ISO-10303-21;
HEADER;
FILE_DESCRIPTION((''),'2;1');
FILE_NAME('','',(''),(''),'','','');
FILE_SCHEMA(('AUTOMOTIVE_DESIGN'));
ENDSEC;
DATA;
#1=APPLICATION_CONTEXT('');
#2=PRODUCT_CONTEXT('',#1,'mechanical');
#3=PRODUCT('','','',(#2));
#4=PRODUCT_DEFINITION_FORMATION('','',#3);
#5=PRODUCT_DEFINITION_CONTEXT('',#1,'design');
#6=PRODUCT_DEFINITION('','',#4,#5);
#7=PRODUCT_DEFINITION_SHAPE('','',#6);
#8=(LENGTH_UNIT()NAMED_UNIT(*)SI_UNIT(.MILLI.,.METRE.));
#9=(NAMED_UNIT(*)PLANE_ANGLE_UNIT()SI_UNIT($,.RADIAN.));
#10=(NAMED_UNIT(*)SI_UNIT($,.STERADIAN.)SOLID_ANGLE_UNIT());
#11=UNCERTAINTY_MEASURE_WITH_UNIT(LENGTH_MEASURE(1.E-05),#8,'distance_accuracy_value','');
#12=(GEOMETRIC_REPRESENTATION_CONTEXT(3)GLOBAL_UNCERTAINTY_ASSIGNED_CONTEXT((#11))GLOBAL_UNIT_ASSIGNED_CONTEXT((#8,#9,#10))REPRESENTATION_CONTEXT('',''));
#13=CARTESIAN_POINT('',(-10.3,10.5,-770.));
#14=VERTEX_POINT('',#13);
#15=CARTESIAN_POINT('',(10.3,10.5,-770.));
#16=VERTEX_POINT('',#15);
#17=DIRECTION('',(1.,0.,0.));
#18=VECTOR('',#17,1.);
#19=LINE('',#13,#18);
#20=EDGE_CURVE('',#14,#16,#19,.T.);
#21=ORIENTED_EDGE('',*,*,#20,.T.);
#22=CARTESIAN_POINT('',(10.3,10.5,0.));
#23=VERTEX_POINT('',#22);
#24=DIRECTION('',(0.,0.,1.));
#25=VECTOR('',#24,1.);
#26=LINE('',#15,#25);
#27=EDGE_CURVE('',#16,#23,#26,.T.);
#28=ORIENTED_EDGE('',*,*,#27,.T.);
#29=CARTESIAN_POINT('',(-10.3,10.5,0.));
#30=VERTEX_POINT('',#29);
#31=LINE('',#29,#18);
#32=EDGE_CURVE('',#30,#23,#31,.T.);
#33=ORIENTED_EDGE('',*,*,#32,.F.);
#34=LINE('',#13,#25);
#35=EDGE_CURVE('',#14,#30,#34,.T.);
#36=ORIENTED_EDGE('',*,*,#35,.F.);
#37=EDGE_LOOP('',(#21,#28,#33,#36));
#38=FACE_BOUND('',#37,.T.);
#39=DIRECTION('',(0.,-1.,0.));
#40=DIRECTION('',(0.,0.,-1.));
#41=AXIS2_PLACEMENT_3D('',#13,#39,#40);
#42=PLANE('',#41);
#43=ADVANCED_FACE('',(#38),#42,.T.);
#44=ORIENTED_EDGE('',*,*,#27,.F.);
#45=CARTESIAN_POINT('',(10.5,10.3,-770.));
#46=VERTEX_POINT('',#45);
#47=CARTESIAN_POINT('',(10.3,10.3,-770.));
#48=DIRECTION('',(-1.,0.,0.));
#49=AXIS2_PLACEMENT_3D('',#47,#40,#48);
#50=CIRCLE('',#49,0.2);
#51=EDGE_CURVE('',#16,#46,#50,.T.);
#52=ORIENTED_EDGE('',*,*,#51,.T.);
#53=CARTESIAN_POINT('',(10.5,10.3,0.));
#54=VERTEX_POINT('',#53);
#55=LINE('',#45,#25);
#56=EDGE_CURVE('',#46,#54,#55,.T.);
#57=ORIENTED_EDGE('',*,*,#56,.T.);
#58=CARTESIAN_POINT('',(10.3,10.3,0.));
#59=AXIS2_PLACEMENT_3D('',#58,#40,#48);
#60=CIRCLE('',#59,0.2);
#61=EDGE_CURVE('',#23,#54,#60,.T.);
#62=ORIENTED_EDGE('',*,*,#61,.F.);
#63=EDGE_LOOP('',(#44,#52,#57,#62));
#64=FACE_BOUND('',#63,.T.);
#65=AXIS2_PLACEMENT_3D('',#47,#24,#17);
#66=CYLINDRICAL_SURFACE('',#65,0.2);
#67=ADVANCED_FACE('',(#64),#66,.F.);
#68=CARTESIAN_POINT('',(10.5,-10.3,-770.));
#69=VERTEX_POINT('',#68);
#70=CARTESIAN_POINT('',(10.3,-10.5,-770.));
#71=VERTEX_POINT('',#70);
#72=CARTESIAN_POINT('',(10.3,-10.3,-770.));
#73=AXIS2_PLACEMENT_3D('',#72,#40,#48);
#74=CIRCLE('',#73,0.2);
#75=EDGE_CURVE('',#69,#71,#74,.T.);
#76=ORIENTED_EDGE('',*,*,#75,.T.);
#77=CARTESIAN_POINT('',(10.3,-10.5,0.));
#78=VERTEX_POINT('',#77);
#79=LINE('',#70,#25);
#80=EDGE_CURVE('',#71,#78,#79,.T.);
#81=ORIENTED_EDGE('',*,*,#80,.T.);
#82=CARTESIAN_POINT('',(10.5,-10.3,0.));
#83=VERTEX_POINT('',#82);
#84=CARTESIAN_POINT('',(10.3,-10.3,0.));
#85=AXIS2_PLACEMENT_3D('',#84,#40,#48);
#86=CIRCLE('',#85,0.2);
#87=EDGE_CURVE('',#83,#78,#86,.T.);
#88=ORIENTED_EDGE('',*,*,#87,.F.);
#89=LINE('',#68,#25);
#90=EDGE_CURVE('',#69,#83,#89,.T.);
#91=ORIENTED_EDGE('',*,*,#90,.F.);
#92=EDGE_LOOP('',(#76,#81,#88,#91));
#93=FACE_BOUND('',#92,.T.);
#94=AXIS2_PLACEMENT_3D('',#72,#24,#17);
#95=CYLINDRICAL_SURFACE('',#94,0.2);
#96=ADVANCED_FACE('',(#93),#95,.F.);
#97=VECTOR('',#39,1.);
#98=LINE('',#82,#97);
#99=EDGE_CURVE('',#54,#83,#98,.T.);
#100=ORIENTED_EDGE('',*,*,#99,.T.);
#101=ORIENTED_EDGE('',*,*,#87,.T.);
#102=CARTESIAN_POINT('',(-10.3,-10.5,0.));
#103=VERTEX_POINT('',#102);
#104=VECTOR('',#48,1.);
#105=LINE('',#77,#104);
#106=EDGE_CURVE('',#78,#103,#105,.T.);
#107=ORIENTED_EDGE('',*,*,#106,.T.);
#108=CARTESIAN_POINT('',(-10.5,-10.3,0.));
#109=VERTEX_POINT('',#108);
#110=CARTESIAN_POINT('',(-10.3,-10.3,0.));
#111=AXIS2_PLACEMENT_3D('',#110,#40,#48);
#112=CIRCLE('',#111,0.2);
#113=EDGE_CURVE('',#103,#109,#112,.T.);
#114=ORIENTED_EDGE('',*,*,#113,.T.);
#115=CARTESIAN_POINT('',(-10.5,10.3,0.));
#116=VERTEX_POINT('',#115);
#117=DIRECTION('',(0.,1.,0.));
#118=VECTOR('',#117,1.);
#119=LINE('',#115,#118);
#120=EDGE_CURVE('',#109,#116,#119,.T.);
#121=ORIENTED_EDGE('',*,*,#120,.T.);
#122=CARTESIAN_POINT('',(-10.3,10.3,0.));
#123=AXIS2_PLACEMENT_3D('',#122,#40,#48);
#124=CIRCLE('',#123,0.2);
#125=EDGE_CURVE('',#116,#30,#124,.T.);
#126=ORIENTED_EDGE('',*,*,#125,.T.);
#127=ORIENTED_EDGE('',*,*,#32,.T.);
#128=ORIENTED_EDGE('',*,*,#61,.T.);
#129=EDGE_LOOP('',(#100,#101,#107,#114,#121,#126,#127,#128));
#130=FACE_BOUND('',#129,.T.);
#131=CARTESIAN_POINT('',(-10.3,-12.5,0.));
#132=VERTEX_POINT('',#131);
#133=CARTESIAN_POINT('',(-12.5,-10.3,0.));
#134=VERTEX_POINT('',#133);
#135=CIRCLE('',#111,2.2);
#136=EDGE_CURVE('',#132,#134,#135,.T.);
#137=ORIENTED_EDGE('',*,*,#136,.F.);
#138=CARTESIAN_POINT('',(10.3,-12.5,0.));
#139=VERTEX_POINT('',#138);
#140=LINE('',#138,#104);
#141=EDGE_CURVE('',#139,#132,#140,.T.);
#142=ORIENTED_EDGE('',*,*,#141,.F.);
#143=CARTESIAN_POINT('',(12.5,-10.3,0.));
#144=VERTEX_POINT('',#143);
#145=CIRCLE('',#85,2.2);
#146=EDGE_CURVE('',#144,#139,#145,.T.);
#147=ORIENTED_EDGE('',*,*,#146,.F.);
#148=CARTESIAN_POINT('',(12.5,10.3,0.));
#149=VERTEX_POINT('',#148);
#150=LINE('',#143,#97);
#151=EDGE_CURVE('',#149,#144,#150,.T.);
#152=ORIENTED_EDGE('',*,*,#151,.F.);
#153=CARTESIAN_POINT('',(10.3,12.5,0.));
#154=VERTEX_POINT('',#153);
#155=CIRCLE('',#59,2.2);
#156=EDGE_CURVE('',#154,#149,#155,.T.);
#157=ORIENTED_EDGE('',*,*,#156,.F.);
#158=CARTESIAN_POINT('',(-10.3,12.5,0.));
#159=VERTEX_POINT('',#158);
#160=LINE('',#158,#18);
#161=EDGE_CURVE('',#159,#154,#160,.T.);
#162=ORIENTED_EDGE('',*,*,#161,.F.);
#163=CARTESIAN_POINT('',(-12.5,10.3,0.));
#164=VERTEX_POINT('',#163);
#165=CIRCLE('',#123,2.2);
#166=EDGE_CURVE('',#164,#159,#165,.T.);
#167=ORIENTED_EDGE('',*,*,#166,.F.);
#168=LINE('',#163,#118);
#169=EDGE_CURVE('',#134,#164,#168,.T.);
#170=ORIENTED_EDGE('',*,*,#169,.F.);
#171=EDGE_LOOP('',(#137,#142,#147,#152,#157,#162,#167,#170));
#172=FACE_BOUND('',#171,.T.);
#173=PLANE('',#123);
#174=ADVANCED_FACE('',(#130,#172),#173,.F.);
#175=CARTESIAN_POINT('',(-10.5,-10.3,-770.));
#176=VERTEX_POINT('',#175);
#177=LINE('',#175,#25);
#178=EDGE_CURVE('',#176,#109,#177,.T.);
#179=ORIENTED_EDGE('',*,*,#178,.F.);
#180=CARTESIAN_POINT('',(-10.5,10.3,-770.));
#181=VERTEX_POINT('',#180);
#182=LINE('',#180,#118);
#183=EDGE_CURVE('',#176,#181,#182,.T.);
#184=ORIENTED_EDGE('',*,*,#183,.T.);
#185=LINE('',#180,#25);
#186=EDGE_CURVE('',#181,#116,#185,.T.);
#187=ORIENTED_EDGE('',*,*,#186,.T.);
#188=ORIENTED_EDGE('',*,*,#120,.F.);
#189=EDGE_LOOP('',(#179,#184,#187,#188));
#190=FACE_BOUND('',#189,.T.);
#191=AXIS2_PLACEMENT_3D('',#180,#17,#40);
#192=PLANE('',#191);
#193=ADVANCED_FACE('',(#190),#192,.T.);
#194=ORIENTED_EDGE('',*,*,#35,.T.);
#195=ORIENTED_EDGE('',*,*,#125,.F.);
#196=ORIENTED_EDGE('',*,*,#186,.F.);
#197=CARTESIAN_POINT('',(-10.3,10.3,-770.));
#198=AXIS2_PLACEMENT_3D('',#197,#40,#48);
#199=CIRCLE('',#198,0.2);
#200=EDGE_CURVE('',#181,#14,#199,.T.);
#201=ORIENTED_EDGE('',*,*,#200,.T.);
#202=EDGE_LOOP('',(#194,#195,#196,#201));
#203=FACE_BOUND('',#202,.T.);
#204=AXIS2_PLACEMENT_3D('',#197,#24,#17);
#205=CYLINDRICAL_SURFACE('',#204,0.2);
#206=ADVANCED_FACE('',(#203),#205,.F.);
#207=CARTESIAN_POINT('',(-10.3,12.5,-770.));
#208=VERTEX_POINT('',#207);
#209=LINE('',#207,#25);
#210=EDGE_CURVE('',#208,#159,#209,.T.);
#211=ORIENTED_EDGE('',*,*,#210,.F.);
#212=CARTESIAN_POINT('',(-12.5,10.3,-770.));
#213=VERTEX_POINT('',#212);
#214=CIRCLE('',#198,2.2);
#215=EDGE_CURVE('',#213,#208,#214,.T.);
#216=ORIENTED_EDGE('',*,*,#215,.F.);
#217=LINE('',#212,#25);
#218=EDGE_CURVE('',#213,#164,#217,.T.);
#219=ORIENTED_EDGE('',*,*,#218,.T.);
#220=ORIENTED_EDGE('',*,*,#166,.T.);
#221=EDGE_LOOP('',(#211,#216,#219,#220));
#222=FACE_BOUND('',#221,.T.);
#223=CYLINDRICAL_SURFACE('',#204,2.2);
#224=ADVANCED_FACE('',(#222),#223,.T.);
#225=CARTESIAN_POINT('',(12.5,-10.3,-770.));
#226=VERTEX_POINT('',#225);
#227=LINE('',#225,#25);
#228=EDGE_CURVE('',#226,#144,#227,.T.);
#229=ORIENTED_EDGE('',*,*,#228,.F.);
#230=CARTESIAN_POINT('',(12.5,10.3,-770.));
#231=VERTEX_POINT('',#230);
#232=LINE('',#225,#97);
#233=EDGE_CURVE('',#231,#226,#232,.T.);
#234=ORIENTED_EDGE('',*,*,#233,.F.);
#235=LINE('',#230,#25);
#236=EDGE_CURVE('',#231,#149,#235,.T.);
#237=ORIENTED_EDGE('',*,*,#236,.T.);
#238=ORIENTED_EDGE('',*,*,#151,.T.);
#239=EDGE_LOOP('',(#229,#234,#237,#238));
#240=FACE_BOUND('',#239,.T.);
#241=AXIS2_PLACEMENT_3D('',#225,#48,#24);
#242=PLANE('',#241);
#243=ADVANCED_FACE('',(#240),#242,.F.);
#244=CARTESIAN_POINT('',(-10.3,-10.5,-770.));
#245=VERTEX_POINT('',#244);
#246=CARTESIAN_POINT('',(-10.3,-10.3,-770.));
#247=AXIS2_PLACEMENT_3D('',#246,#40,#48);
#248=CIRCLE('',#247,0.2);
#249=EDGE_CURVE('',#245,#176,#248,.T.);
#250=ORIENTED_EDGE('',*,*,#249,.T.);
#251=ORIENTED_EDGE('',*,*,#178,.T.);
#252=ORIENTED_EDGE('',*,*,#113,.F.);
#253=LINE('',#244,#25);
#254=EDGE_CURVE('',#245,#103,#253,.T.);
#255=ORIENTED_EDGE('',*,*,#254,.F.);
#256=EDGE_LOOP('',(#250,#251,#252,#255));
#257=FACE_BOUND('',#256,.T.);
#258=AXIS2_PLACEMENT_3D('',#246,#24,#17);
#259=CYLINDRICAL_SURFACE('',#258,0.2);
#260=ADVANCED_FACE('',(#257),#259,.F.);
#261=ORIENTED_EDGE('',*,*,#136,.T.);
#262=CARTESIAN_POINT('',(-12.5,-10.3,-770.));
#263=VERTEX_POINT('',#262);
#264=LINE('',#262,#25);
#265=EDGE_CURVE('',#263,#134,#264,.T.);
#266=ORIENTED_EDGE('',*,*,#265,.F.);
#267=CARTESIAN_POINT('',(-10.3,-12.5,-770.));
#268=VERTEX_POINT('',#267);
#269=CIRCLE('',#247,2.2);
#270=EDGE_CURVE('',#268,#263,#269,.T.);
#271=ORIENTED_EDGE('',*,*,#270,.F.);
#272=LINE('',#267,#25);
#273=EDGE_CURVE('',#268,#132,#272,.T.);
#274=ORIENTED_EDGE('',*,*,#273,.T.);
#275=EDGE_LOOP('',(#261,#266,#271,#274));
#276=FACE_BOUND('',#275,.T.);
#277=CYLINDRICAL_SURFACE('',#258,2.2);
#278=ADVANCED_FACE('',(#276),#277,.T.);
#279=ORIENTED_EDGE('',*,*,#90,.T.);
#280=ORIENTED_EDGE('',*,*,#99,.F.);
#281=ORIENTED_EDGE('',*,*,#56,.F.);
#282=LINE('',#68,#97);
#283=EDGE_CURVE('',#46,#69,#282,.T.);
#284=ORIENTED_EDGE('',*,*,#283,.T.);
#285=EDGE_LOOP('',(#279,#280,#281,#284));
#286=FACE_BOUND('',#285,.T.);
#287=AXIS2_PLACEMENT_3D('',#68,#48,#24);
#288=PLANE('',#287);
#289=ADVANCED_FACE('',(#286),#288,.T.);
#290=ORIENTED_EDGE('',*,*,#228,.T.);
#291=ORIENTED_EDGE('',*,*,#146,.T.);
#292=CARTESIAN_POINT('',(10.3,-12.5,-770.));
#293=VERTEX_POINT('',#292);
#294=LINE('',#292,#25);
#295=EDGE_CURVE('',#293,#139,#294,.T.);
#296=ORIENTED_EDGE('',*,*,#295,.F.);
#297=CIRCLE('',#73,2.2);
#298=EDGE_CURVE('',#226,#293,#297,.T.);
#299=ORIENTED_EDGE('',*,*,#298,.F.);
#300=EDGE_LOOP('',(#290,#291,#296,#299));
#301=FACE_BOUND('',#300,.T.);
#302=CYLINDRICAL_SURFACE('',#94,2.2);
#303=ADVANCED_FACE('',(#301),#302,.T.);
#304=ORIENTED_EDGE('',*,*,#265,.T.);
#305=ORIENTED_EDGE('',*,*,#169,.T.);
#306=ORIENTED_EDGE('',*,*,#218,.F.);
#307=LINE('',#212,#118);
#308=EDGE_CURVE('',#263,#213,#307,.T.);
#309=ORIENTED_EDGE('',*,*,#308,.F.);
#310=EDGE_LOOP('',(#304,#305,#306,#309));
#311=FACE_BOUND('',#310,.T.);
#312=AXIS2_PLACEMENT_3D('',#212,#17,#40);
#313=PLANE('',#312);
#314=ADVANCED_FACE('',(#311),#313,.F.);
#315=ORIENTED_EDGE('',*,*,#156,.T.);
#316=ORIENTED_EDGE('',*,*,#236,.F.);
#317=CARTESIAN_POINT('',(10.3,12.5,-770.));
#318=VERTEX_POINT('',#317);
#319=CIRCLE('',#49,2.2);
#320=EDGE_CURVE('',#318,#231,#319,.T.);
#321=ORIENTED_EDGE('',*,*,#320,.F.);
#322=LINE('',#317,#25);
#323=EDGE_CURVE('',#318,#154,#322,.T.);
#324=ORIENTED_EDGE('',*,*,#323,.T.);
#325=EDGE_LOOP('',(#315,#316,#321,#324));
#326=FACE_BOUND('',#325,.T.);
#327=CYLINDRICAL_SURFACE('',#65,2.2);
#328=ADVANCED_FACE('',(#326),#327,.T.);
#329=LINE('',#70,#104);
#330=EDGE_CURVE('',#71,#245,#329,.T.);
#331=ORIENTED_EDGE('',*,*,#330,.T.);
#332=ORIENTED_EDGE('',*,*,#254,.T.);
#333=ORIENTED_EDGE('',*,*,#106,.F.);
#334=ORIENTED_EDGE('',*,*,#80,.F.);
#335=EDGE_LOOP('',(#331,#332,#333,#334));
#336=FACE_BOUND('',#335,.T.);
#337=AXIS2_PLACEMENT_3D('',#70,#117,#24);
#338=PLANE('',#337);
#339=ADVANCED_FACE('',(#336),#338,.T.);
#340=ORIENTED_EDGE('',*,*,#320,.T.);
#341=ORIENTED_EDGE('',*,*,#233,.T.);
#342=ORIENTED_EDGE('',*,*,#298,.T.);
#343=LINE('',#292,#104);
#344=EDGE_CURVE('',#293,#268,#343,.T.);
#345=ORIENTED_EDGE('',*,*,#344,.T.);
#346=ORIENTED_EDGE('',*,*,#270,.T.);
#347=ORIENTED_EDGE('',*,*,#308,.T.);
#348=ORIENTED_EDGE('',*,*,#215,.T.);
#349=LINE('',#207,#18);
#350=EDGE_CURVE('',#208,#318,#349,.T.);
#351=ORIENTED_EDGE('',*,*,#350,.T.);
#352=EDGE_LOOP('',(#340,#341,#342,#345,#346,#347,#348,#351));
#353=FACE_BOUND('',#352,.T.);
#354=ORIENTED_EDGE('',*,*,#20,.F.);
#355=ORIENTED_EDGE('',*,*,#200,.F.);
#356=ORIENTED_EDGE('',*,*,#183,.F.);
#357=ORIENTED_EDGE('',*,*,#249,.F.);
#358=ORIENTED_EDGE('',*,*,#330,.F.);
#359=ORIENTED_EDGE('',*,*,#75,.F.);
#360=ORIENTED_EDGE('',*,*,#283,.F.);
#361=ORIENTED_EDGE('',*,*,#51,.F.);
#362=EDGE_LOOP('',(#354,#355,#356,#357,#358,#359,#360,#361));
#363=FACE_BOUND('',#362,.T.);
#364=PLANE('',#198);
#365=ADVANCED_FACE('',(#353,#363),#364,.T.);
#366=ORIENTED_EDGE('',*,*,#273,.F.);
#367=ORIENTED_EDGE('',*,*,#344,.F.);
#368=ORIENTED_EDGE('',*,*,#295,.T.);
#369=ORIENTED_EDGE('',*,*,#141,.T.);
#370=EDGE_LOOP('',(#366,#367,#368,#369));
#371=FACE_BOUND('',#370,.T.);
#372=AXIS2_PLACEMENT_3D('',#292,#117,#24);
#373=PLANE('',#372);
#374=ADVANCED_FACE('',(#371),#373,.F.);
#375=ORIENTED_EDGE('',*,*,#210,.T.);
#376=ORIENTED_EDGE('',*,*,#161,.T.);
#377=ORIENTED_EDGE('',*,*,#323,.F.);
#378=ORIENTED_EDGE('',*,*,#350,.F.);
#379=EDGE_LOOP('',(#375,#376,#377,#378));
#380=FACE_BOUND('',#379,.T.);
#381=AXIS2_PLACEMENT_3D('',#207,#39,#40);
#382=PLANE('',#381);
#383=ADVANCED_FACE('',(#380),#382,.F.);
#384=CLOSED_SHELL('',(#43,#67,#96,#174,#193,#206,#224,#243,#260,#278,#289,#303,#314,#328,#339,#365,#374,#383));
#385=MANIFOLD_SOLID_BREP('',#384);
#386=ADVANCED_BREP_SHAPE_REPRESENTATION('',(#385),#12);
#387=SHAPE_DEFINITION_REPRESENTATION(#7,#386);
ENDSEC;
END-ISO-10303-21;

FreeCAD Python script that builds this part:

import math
import FreeCAD as App
import Part
import Sketcher

V = App.Vector

doc = App.newDocument("Part")
body = doc.addObject("PartDesign::Body", "Body")

# Sketch on XY plane
sketch1 = body.newObject("Sketcher::SketchObject", "Sketch")
sketch1.AttachmentSupport = (doc.getObject("XY_Plane"), [""])
sketch1.MapMode = "FlatFace"
sketch1.addGeometry([
    Part.LineSegment(V(10.3, -12.5, 0), V(-10.3, -12.5, 0)),  # 0
    Part.ArcOfCircle(Part.Circle(V(-10.3, -10.3, 0), V(0, 0, 1), 2.2), math.radians(180), math.radians(270)),  # 1
    Part.LineSegment(V(-12.5, -10.3, 0), V(-12.5, 10.3, 0)),  # 2
    Part.ArcOfCircle(Part.Circle(V(-10.3, 10.3, 0), V(0, 0, 1), 2.2), math.radians(90), math.radians(180)),  # 3
    Part.LineSegment(V(-10.3, 12.5, 0), V(10.3, 12.5, 0)),  # 4
    Part.ArcOfCircle(Part.Circle(V(10.3, 10.3, 0), V(0, 0, 1), 2.2), math.radians(0), math.radians(90)),  # 5
    Part.LineSegment(V(12.5, 10.3, 0), V(12.5, -10.3, 0)),  # 6
    Part.ArcOfCircle(Part.Circle(V(10.3, -10.3, 0), V(0, 0, 1), 2.2), math.radians(-90), math.radians(0)),  # 7
    Part.LineSegment(V(-10.3, -10.5, 0), V(10.3, -10.5, 0)),  # 8
    Part.ArcOfCircle(Part.Circle(V(10.3, -10.3, 0), V(0, 0, 1), 0.2), math.radians(-90), math.radians(0)),  # 9
    Part.LineSegment(V(10.5, -10.3, 0), V(10.5, 10.3, 0)),  # 10
    Part.ArcOfCircle(Part.Circle(V(10.3, 10.3, 0), V(0, 0, 1), 0.2), math.radians(0), math.radians(90)),  # 11
    Part.LineSegment(V(10.3, 10.5, 0), V(-10.3, 10.5, 0)),  # 12
    Part.ArcOfCircle(Part.Circle(V(-10.3, 10.3, 0), V(0, 0, 1), 0.2), math.radians(90), math.radians(180)),  # 13
    Part.LineSegment(V(-10.5, 10.3, 0), V(-10.5, -10.3, 0)),  # 14
    Part.ArcOfCircle(Part.Circle(V(-10.3, -10.3, 0), V(0, 0, 1), 0.2), math.radians(-180), math.radians(-90)),  # 15
], False)
sketch1.addConstraint([
    Sketcher.Constraint("Tangent", 0, 2, 1, 2),
    Sketcher.Constraint("Tangent", 1, 1, 2, 1),
    Sketcher.Constraint("Tangent", 2, 2, 3, 2),
    Sketcher.Constraint("Tangent", 3, 1, 4, 1),
    Sketcher.Constraint("Tangent", 4, 2, 5, 2),
    Sketcher.Constraint("Tangent", 5, 1, 6, 1),
    Sketcher.Constraint("Tangent", 6, 2, 7, 2),
    Sketcher.Constraint("Tangent", 7, 1, 0, 1),
    Sketcher.Constraint("Tangent", 8, 2, 9, 1),
    Sketcher.Constraint("Tangent", 9, 2, 10, 1),
    Sketcher.Constraint("Tangent", 10, 2, 11, 1),
    Sketcher.Constraint("Tangent", 11, 2, 12, 1),
    Sketcher.Constraint("Tangent", 12, 2, 13, 1),
    Sketcher.Constraint("Tangent", 13, 2, 14, 1),
    Sketcher.Constraint("Tangent", 14, 2, 15, 1),
    Sketcher.Constraint("Tangent", 15, 2, 8, 1),
    Sketcher.Constraint("Horizontal", 0),
    Sketcher.Constraint("Vertical", 2),
    Sketcher.Constraint("Horizontal", 4),
    Sketcher.Constraint("Vertical", 6),
    Sketcher.Constraint("Horizontal", 8),
    Sketcher.Constraint("Vertical", 10),
    Sketcher.Constraint("Horizontal", 12),
    Sketcher.Constraint("Vertical", 14),
    Sketcher.Constraint("Coincident", 9, 3, 7, 3),
    Sketcher.Constraint("Coincident", 11, 3, 5, 3),
    Sketcher.Constraint("Coincident", 13, 3, 3, 3),
    Sketcher.Constraint("Equal", 1, 3),
    Sketcher.Constraint("Equal", 3, 5),
    Sketcher.Constraint("Equal", 5, 7),
    Sketcher.Constraint("Equal", 13, 15),
    Sketcher.Constraint("Symmetric", 1, 3, 5, 3, -1, 1),
    Sketcher.Constraint("Equal", 12, 2),
    Sketcher.Constraint("Radius", 1, 2.2),
    Sketcher.Constraint("Radius", 9, 0.2),
    Sketcher.Constraint("DistanceX", 0, 2, 0, 1, 20.6),
])
pad1 = body.newObject("PartDesign::Pad", "Pad")
pad1.Profile = sketch1
pad1.Length = 770
pad1.Reversed = True

doc.recompute()
